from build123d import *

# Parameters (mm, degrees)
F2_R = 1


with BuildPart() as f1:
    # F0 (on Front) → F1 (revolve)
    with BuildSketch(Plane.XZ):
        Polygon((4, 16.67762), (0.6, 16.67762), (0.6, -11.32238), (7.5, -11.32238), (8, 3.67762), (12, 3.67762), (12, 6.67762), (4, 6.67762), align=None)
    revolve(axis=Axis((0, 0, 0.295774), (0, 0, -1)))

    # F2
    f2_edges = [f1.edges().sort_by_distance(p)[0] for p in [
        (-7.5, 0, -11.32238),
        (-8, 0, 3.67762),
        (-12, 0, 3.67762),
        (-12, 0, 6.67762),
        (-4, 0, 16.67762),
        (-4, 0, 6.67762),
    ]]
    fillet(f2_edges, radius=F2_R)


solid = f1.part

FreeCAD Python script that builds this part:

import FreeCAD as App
import Part
import Sketcher


def edges_at(feature, points):
    """Names of the edges that pass closest to the given points."""
    edges = feature.Shape.Edges
    near = lambda p: min(range(len(edges)), key=lambda i: edges[i].distToShape(Part.Vertex(*p))[0])
    return sorted({f"Edge{near(p) + 1}" for p in points})

doc = App.newDocument("Part")
body = doc.addObject("PartDesign::Body", "Body")

sketch1 = body.newObject("Sketcher::SketchObject", "Sketch")
sketch1.AttachmentSupport = (doc.getObject("XZ_Plane"), [""])
sketch1.MapMode = "FlatFace"
sketch1.addGeometry([
    Part.LineSegment(App.Vector(4, 16.7, 0), App.Vector(0.6, 16.7, 0)),
    Part.LineSegment(App.Vector(0.6, 16.7, 0), App.Vector(0.6, -11.3, 0)),
    Part.LineSegment(App.Vector(0.6, -11.3, 0), App.Vector(7.5, -11.3, 0)),
    Part.LineSegment(App.Vector(7.5, -11.3, 0), App.Vector(8, 3.7, 0)),
    Part.LineSegment(App.Vector(8, 3.7, 0), App.Vector(12, 3.7, 0)),
    Part.LineSegment(App.Vector(12, 3.7, 0), App.Vector(12, 6.7, 0)),
    Part.LineSegment(App.Vector(12, 6.7, 0), App.Vector(4, 6.7, 0)),
    Part.LineSegment(App.Vector(4, 6.7, 0), App.Vector(4, 16.7, 0)),
], False)
sketch1.addConstraint([
    Sketcher.Constraint("Coincident", 0, 2, 1, 1),
    Sketcher.Constraint("Coincident", 1, 2, 2, 1),
    Sketcher.Constraint("Coincident", 2, 2, 3, 1),
    Sketcher.Constraint("Coincident", 3, 2, 4, 1),
    Sketcher.Constraint("Coincident", 4, 2, 5, 1),
    Sketcher.Constraint("Coincident", 5, 2, 6, 1),
    Sketcher.Constraint("Coincident", 6, 2, 7, 1),
    Sketcher.Constraint("Coincident", 7, 2, 0, 1),
    Sketcher.Constraint("Horizontal", 0),
    Sketcher.Constraint("Vertical", 1),
    Sketcher.Constraint("Horizontal", 2),
    Sketcher.Constraint("Horizontal", 4),
    Sketcher.Constraint("Vertical", 5),
    Sketcher.Constraint("Horizontal", 6),
    Sketcher.Constraint("Vertical", 7),
    Sketcher.Constraint("DistanceX", 4, 1, 4, 2, 4.0),
    Sketcher.Constraint("DistanceX", 6, 2, 6, 1, 8.0),
    Sketcher.Constraint("DistanceY", 1, 2, 1, 1, 28.0),
    Sketcher.Constraint("DistanceY", 5, 1, 5, 2, 3.0),
    Sketcher.Constraint("DistanceY", 7, 1, 7, 2, 10.0),
    Sketcher.Constraint("DistanceX", 0, 2, 0, 1, 3.4),
    Sketcher.Constraint("DistanceX", 2, 1, 2, 2, 6.9),
    Sketcher.Constraint("DistanceX", -1, 1, 3, 2, 8.0),
    Sketcher.Constraint("DistanceY", -1, 1, 0, 2, 16.67762),
])
revolution = body.newObject("PartDesign::Revolution", "Revolution")
revolution.Profile = sketch1
revolution.ReferenceAxis = (sketch1, ["V_Axis"])
revolution.Angle = 360
doc.recompute()

fillet = body.newObject("PartDesign::Fillet", "Fillet")
fillet.Base = (revolution, edges_at(revolution, [
    (-7.5, 0, -11.322),
    (-8, 0, 3.678),
    (-12, 0, 3.678),
    (-12, 0, 6.678),
    (-4, 0, 16.678),
    (-4, 0, 6.678),
]))
fillet.Radius = 1

doc.recompute()
